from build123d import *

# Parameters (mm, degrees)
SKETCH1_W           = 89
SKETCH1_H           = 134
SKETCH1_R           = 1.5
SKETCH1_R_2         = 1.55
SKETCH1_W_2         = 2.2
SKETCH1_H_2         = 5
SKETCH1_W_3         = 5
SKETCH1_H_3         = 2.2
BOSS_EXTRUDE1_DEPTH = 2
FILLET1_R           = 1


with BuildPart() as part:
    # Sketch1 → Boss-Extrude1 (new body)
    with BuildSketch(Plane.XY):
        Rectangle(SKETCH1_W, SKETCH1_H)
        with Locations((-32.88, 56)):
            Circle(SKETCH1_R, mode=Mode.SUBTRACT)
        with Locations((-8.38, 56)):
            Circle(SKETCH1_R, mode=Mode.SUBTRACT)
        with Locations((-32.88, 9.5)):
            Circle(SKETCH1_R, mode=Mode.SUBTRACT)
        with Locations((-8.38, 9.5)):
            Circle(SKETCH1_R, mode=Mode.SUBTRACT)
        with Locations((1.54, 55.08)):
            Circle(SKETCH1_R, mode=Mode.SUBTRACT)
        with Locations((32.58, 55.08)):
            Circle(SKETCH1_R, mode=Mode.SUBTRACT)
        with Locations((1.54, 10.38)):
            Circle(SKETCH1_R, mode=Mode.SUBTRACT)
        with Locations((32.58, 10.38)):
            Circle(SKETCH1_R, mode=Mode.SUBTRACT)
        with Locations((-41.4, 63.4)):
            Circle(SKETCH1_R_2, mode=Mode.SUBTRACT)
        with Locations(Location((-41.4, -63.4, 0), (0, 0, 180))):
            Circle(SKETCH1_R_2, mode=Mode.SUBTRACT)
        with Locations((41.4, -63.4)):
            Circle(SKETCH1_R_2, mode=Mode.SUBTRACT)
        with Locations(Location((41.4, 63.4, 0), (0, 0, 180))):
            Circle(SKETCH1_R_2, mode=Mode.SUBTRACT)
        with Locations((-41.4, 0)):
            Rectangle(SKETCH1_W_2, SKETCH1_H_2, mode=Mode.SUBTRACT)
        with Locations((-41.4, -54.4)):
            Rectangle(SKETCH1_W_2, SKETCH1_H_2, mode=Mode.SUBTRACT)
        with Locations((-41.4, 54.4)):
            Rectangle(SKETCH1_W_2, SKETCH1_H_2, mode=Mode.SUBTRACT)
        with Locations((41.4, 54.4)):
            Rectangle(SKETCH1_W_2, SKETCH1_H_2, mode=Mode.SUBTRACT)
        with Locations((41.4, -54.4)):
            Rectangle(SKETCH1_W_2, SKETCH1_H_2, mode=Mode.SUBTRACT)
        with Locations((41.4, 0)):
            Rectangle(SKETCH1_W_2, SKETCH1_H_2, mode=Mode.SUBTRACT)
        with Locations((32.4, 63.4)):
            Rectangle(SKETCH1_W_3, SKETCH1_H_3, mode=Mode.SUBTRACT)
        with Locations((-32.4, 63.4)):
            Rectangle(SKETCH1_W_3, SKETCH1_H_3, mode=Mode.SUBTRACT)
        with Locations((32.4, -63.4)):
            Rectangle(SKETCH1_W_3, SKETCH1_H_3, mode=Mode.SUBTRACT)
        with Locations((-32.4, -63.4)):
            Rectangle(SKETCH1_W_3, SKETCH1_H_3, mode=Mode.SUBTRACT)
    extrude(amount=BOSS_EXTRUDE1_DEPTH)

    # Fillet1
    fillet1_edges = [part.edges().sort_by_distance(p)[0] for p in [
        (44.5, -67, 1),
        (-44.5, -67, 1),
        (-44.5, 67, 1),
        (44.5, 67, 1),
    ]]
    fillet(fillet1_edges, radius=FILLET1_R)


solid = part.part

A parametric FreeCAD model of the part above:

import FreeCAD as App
import Part
import Sketcher
Q = App.Units.Quantity


def edges_at(feature, points):
    """Names of the edges that pass closest to the given points."""
    edges = feature.Shape.Edges
    near = lambda p: min(range(len(edges)), key=lambda i: edges[i].distToShape(Part.Vertex(*p))[0])
    return sorted({f"Edge{near(p) + 1}" for p in points})


def add_polygon(sketch, points):
    """Adds a closed chain of lines whose ends are joined by coincident constraints."""
    first, n = sketch.GeometryCount, len(points)
    for a, b in zip(points, points[1:] + points[:1]):
        sketch.addGeometry(Part.LineSegment(App.Vector(*a, 0), App.Vector(*b, 0)), False)
    for i in range(n):
        sketch.addConstraint(Sketcher.Constraint("Coincident", first + i, 2, first + (i + 1) % n, 1))

doc = App.newDocument("Part")
body = doc.addObject("PartDesign::Body", "Body")

# Sketch on XY plane
sketch1 = body.newObject("Sketcher::SketchObject", "Sketch")
sketch1.AttachmentSupport = (doc.getObject("XY_Plane"), [""])
sketch1.MapMode = "FlatFace"
add_polygon(sketch1, [(-44.5, 67), (-44.5, -67), (44.5, -67), (44.5, 67)])  # lines 0-3
sketch1.addGeometry(Part.Circle(App.Vector(-41.4, -63.4, 0), App.Vector(0, 0, 1), 1.6), False)  # 4
add_polygon(sketch1, [(-29.9, -64.5), (-34.9, -64.5), (-34.9, -62.3), (-29.9, -62.3)])  # lines 5-8
add_polygon(sketch1, [(-40.3, -56.9), (-42.5, -56.9), (-42.5, -51.9), (-40.3, -51.9)])  # lines 9-12
add_polygon(sketch1, [(34.9, -64.5), (29.9, -64.5), (29.9, -62.3), (34.9, -62.3)])  # lines 13-16
sketch1.addGeometry(Part.Circle(App.Vector(41.4, -63.4, 0), App.Vector(0, 0, 1), 1.6), False)  # 17
add_polygon(sketch1, [(42.5, -56.9), (40.3, -56.9), (40.3, -51.9), (42.5, -51.9)])  # lines 18-21
add_polygon(sketch1, [(-40.3, -2.5), (-42.5, -2.5), (-42.5, 2.5), (-40.3, 2.5)])  # lines 22-25
sketch1.addGeometry(Part.Circle(App.Vector(-32.9, 9.5, 0), App.Vector(0, 0, 1), 1.5), False)  # 26
sketch1.addGeometry(Part.Circle(App.Vector(-8.4, 9.5, 0), App.Vector(0, 0, 1), 1.5), False)  # 27
add_polygon(sketch1, [(-40.3, 51.9), (-42.5, 51.9), (-42.5, 56.9), (-40.3, 56.9)])  # lines 28-31
sketch1.addGeometry(Part.Circle(App.Vector(-32.9, 56, 0), App.Vector(0, 0, 1), 1.5), False)  # 32
sketch1.addGeometry(Part.Circle(App.Vector(-41.4, 63.4, 0), App.Vector(0, 0, 1), 1.6), False)  # 33
add_polygon(sketch1, [(-29.9, 62.3), (-34.9, 62.3), (-34.9, 64.5), (-29.9, 64.5)])  # lines 34-37
sketch1.addGeometry(Part.Circle(App.Vector(-8.4, 56, 0), App.Vector(0, 0, 1), 1.5), False)  # 38
sketch1.addGeometry(Part.Circle(App.Vector(1.5, 10.4, 0), App.Vector(0, 0, 1), 1.5), False)  # 39
add_polygon(sketch1, [(42.5, -2.5), (40.3, -2.5), (40.3, 2.5), (42.5, 2.5)])  # lines 40-43
sketch1.addGeometry(Part.Circle(App.Vector(32.6, 10.4, 0), App.Vector(0, 0, 1), 1.5), False)  # 44
sketch1.addGeometry(Part.Circle(App.Vector(1.5, 55.1, 0), App.Vector(0, 0, 1), 1.5), False)  # 45
sketch1.addGeometry(Part.Circle(App.Vector(32.6, 55.1, 0), App.Vector(0, 0, 1), 1.5), False)  # 46
add_polygon(sketch1, [(42.5, 51.9), (40.3, 51.9), (40.3, 56.9), (42.5, 56.9)])  # lines 47-50
add_polygon(sketch1, [(34.9, 62.3), (29.9, 62.3), (29.9, 64.5), (34.9, 64.5)])  # lines 51-54
sketch1.addGeometry(Part.Circle(App.Vector(41.4, 63.4, 0), App.Vector(0, 0, 1), 1.6), False)  # 55
sketch1.addConstraint(Sketcher.Constraint("Vertical", 0))
sketch1.addConstraint(Sketcher.Constraint("Horizontal", 1))
sketch1.addConstraint(Sketcher.Constraint("Vertical", 2))
sketch1.addConstraint(Sketcher.Constraint("Horizontal", 3))
sketch1.addConstraint(Sketcher.Constraint("Horizontal", 5))
sketch1.addConstraint(Sketcher.Constraint("Vertical", 6))
sketch1.addConstraint(Sketcher.Constraint("Horizontal", 7))
sketch1.addConstraint(Sketcher.Constraint("Vertical", 8))
sketch1.addConstraint(Sketcher.Constraint("Horizontal", 9))
sketch1.addConstraint(Sketcher.Constraint("Vertical", 10))
sketch1.addConstraint(Sketcher.Constraint("Horizontal", 11))
sketch1.addConstraint(Sketcher.Constraint("Vertical", 12))
sketch1.addConstraint(Sketcher.Constraint("Horizontal", 13))
sketch1.addConstraint(Sketcher.Constraint("Vertical", 14))
sketch1.addConstraint(Sketcher.Constraint("Horizontal", 15))
sketch1.addConstraint(Sketcher.Constraint("Vertical", 16))
sketch1.addConstraint(Sketcher.Constraint("Horizontal", 18))
sketch1.addConstraint(Sketcher.Constraint("Vertical", 19))
sketch1.addConstraint(Sketcher.Constraint("Horizontal", 20))
sketch1.addConstraint(Sketcher.Constraint("Vertical", 21))
sketch1.addConstraint(Sketcher.Constraint("Horizontal", 22))
sketch1.addConstraint(Sketcher.Constraint("Vertical", 23))
sketch1.addConstraint(Sketcher.Constraint("Horizontal", 24))
sketch1.addConstraint(Sketcher.Constraint("Vertical", 25))
sketch1.addConstraint(Sketcher.Constraint("Horizontal", 28))
sketch1.addConstraint(Sketcher.Constraint("Vertical", 29))
sketch1.addConstraint(Sketcher.Constraint("Horizontal", 30))
sketch1.addConstraint(Sketcher.Constraint("Vertical", 31))
sketch1.addConstraint(Sketcher.Constraint("Horizontal", 34))
sketch1.addConstraint(Sketcher.Constraint("Vertical", 35))
sketch1.addConstraint(Sketcher.Constraint("Horizontal", 36))
sketch1.addConstraint(Sketcher.Constraint("Vertical", 37))
sketch1.addConstraint(Sketcher.Constraint("Horizontal", 40))
sketch1.addConstraint(Sketcher.Constraint("Vertical", 41))
sketch1.addConstraint(Sketcher.Constraint("Horizontal", 42))
sketch1.addConstraint(Sketcher.Constraint("Vertical", 43))
sketch1.addConstraint(Sketcher.Constraint("Horizontal", 47))
sketch1.addConstraint(Sketcher.Constraint("Vertical", 48))
sketch1.addConstraint(Sketcher.Constraint("Horizontal", 49))
sketch1.addConstraint(Sketcher.Constraint("Vertical", 50))
sketch1.addConstraint(Sketcher.Constraint("Horizontal", 51))
sketch1.addConstraint(Sketcher.Constraint("Vertical", 52))
sketch1.addConstraint(Sketcher.Constraint("Horizontal", 53))
sketch1.addConstraint(Sketcher.Constraint("Vertical", 54))
sketch1.addConstraint(Sketcher.Constraint("Equal", 4, 17))
sketch1.addConstraint(Sketcher.Constraint("Equal", 26, 27))
sketch1.addConstraint(Sketcher.Constraint("Equal", 27, 32))
sketch1.addConstraint(Sketcher.Constraint("Equal", 17, 33))
sketch1.addConstraint(Sketcher.Constraint("Equal", 32, 38))
sketch1.addConstraint(Sketcher.Constraint("Equal", 38, 39))
sketch1.addConstraint(Sketcher.Constraint("Equal", 39, 44))
sketch1.addConstraint(Sketcher.Constraint("Equal", 44, 45))
sketch1.addConstraint(Sketcher.Constraint("Equal", 45, 46))
sketch1.addConstraint(Sketcher.Constraint("Equal", 33, 55))
sketch1.addConstraint(Sketcher.Constraint("Symmetric", 17, 3, 33, 3, -1, 1))
sketch1.addConstraint(Sketcher.Constraint("Symmetric", 4, 3, 55, 3, -1, 1))
sketch1.addConstraint(Sketcher.Constraint("Symmetric", 0, 2, 2, 2, -1, 1))
sketch1.addConstraint(Sketcher.Constraint("Symmetric", 20, 2, 28, 2, -1, 1))
sketch1.addConstraint(Sketcher.Constraint("Symmetric", 18, 2, 30, 2, -1, 1))
sketch1.addConstraint(Sketcher.Constraint("Symmetric", 15, 2, 34, 2, -1, 1))
sketch1.addConstraint(Sketcher.Constraint("Symmetric", 13, 2, 36, 2, -1, 1))
sketch1.addConstraint(Sketcher.Constraint("Symmetric", 24, 2, 40, 2, -1, 1))
sketch1.addConstraint(Sketcher.Constraint("Symmetric", 22, 2, 42, 2, -1, 1))
sketch1.addConstraint(Sketcher.Constraint("Symmetric", 11, 2, 47, 2, -1, 1))
sketch1.addConstraint(Sketcher.Constraint("Symmetric", 9, 2, 49, 2, -1, 1))
sketch1.addConstraint(Sketcher.Constraint("Symmetric", 7, 2, 51, 2, -1, 1))
sketch1.addConstraint(Sketcher.Constraint("Symmetric", 5, 2, 53, 2, -1, 1))
sketch1.addConstraint(Sketcher.Constraint("Symmetric", 4, 3, 17, 3, -2))
sketch1.addConstraint(Sketcher.Constraint("Symmetric", 8, 2, 13, 2, -2))
sketch1.addConstraint(Sketcher.Constraint("Symmetric", 6, 2, 15, 2, -2))
sketch1.addConstraint(Sketcher.Constraint("Symmetric", 12, 2, 18, 2, -2))
sketch1.addConstraint(Sketcher.Constraint("Symmetric", 10, 2, 20, 2, -2))
sketch1.addConstraint(Sketcher.Constraint("Horizontal", 26, 3, 27, 3))
sketch1.addConstraint(Sketcher.Constraint("Horizontal", 32, 3, 38, 3))
sketch1.addConstraint(Sketcher.Constraint("Horizontal", 39, 3, 44, 3))
sketch1.addConstraint(Sketcher.Constraint("Horizontal", 45, 3, 46, 3))
sketch1.addConstraint(Sketcher.Constraint("Horizontal", 25, 2, 40, 2))
sketch1.addConstraint(Sketcher.Constraint("Vertical", 26, 3, 32, 3))
sketch1.addConstraint(Sketcher.Constraint("Vertical", 27, 3, 38, 3))
sketch1.addConstraint(Sketcher.Constraint("Vertical", 39, 3, 45, 3))
sketch1.addConstraint(Sketcher.Constraint("Vertical", 44, 3, 46, 3))
sketch1.addConstraint(Sketcher.Constraint("Vertical", 10, 2, 22, 2))
sketch1.addConstraint(Sketcher.Constraint("Vertical", 12, 2, 24, 2))
sketch1.addConstraint(Sketcher.Constraint("Equal", 49, 6))
sketch1.addConstraint(Sketcher.Constraint("Equal", 53, 10))
sketch1.addConstraint(Sketcher.Constraint("Equal", 21, 23))
sketch1.addConstraint(Sketcher.Constraint("Diameter", 26, Q("3 mm")))
sketch1.addConstraint(Sketcher.Constraint("Diameter", 4, Q("3.1 mm")))
sketch1.addConstraint(Sketcher.Constraint("DistanceX", 1, 1, 1, 2, Q("89 mm")))
sketch1.addConstraint(Sketcher.Constraint("DistanceX", 5, 2, 5, 1, Q("5 mm")))
sketch1.addConstraint(Sketcher.Constraint("DistanceY", 0, 2, 0, 1, Q("134 mm")))
sketch1.addConstraint(Sketcher.Constraint("DistanceX", 9, 2, 9, 1, Q("2.2 mm")))
sketch1.addConstraint(Sketcher.Constraint("DistanceY", -1, 1, 32, 3, Q("56 mm")))
sketch1.addConstraint(Sketcher.Constraint("DistanceY", 5, 2, 26, 3, Q("74 mm")))
sketch1.addConstraint(Sketcher.Constraint("DistanceX", 0, 2, 9, 2, Q("2 mm")))
sketch1.addConstraint(Sketcher.Constraint("DistanceY", 22, 2, 26, 3, Q("12 mm")))
sketch1.addConstraint(Sketcher.Constraint("DistanceX", 4, 3, -1, 1, Q("41.4 mm")))
sketch1.addConstraint(Sketcher.Constraint("DistanceY", 4, 3, -1, 1, Q("63.4 mm")))
sketch1.addConstraint(Sketcher.Constraint("DistanceX", 5, 2, -1, 1, Q("34.9 mm")))
sketch1.addConstraint(Sketcher.Constraint("DistanceY", 9, 2, -1, 1, Q("56.9 mm")))
sketch1.addConstraint(Sketcher.Constraint("DistanceX", 26, 3, 27, 3, Q("24.5 mm")))
sketch1.addConstraint(Sketcher.Constraint("DistanceY", 39, 3, 45, 3, Q("44.7 mm")))
sketch1.addConstraint(Sketcher.Constraint("DistanceX", 26, 3, -1, 1, Q("32.88 mm")))
sketch1.addConstraint(Sketcher.Constraint("DistanceX", -1, 1, 39, 3, Q("1.54 mm")))
sketch1.addConstraint(Sketcher.Constraint("DistanceY", -1, 1, 39, 3, Q("10.38 mm")))
sketch1.addConstraint(Sketcher.Constraint("DistanceX", -1, 1, 44, 3, Q("32.58 mm")))
pad1 = body.newObject("PartDesign::Pad", "Pad")
pad1.Profile = sketch1
pad1.Length = 2
doc.recompute()

fillet = body.newObject("PartDesign::Fillet", "Fillet")
fillet.Base = (pad1, edges_at(pad1, [
    (44.5, -67, 1),
    (-44.5, -67, 1),
    (-44.5, 67, 1),
    (44.5, 67, 1),
]))
fillet.Radius = 1

doc.recompute()
